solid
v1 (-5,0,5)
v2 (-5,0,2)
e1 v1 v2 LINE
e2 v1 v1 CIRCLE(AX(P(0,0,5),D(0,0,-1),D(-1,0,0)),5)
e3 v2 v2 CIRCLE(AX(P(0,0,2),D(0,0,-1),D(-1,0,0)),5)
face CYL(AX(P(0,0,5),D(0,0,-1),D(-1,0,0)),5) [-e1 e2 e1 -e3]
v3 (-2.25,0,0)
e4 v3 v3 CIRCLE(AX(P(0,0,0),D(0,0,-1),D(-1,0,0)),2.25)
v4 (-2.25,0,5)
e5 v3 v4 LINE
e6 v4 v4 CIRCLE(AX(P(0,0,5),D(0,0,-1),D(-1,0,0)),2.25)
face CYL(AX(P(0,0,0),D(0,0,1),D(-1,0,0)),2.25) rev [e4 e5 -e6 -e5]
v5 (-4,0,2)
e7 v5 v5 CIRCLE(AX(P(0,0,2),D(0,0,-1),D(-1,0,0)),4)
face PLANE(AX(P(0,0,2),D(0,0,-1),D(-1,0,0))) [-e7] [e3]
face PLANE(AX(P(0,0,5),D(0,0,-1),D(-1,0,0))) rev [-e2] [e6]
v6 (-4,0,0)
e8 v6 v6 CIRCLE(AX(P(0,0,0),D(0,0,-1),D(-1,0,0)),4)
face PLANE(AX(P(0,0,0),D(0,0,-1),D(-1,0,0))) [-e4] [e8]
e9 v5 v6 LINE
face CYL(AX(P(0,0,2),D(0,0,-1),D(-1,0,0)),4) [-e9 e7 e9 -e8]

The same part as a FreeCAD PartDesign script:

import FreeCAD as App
import Part
import Sketcher
from FreeCAD import Vector


def add_polygon(sketch, points):
    """Adds a closed chain of lines whose ends are joined by coincident constraints."""
    first, n = sketch.GeometryCount, len(points)
    for a, b in zip(points, points[1:] + points[:1]):
        sketch.addGeometry(Part.LineSegment(App.Vector(*a, 0), App.Vector(*b, 0)), False)
    for i in range(n):
        sketch.addConstraint(Sketcher.Constraint("Coincident", first + i, 2, first + (i + 1) % n, 1))

doc = App.newDocument("Part")
body = doc.addObject("PartDesign::Body", "Body")

# Sketch on XZ plane
sketch1 = body.newObject("Sketcher::SketchObject", "Sketch")
sketch1.AttachmentSupport = (doc.getObject("XZ_Plane"), [""])
sketch1.MapMode = "FlatFace"
add_polygon(sketch1, [(-4, 0), (-2.25, 0), (-2.25, 5), (-5, 5), (-5, 2), (-4, 2)])  # lines 0-5
sketch1.addConstraint([
    Sketcher.Constraint("Horizontal", 0),
    Sketcher.Constraint("Vertical", 1),
    Sketcher.Constraint("Horizontal", 2),
    Sketcher.Constraint("Vertical", 3),
    Sketcher.Constraint("Horizontal", 4),
    Sketcher.Constraint("Vertical", 5),
    Sketcher.Constraint("PointOnObject", 0, 2, -1),
    Sketcher.Constraint("DistanceX", 4, 2, -1, 1, 4.0),
    Sketcher.Constraint("DistanceX", 4, 1, 4, 2, 1.0),
    Sketcher.Constraint("DistanceY", 1, 1, 1, 2, 5.0),
    Sketcher.Constraint("DistanceY", 3, 2, 3, 1, 3.0),
    Sketcher.Constraint("DistanceX", 0, 1, 0, 2, 1.75),
])
revolution = body.newObject("PartDesign::Revolution", "Revolution")
revolution.Profile = sketch1
revolution.ReferenceAxis = (sketch1, ["V_Axis"])
revolution.Angle = 360

doc.recompute()
